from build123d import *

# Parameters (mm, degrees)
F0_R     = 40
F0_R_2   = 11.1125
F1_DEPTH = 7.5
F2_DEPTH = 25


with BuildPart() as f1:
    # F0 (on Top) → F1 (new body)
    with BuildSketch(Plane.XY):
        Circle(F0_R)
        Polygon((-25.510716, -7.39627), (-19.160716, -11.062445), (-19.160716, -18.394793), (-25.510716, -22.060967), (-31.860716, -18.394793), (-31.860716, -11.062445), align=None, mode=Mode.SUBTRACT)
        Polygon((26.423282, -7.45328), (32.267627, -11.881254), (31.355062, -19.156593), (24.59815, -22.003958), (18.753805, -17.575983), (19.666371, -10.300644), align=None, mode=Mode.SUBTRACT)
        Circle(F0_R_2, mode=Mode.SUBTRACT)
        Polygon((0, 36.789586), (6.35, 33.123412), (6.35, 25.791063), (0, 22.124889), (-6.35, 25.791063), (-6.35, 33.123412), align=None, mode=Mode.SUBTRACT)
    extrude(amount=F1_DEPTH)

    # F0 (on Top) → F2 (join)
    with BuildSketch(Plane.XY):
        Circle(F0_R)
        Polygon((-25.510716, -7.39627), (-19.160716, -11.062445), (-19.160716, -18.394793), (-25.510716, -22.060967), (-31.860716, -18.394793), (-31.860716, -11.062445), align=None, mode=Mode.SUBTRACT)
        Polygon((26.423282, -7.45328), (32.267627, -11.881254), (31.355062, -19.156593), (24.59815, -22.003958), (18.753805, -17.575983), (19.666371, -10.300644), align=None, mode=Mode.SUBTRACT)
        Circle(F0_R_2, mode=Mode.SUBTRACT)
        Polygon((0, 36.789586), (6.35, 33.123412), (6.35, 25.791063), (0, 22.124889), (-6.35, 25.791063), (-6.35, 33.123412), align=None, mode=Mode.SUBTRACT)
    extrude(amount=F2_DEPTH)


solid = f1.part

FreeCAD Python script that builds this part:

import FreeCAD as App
import Part
import Sketcher

V = App.Vector
Q = App.Units.Quantity

doc = App.newDocument("Part")
params = doc.addObject("Spreadsheet::Sheet", "Params")
for row, (alias, value) in enumerate([
    ("sketch1_diameter", "80 mm"),
    ("pad1_length", "7.5 mm"),
    ("sketch2_diameter", "80 mm"),
    ("pad2_length", "25 mm"),
], start=1):
    params.set(f"A{row}", alias)
    params.set(f"B{row}", "=" + value)
    params.setAlias(f"B{row}", alias)

body = doc.addObject("PartDesign::Body", "Body")

sketch1 = body.newObject("Sketcher::SketchObject", "Sketch")
sketch1.AttachmentSupport = (doc.getObject("XY_Plane"), [""])
sketch1.MapMode = "FlatFace"
sketch1.addGeometry([
    Part.Circle(V(0, 0, 0), V(0, 0, 1), 40),
    Part.LineSegment(V(-32, -11, 0), V(-26, -7, 0)),
    Part.LineSegment(V(-26, -7, 0), V(-19, -11, 0)),
    Part.LineSegment(V(-19, -11, 0), V(-19, -18, 0)),
    Part.LineSegment(V(-19, -18, 0), V(-26, -22, 0)),
    Part.LineSegment(V(-26, -22, 0), V(-32, -18, 0)),
    Part.LineSegment(V(-32, -18, 0), V(-32, -11, 0)),
    Part.Circle(V(0, 0, 0), V(0, 0, 1), 11),
    Part.LineSegment(V(20, -10, 0), V(26, -7, 0)),
    Part.LineSegment(V(26, -7, 0), V(32, -12, 0)),
    Part.LineSegment(V(32, -12, 0), V(31, -19, 0)),
    Part.LineSegment(V(31, -19, 0), V(25, -22, 0)),
    Part.LineSegment(V(25, -22, 0), V(19, -18, 0)),
    Part.LineSegment(V(19, -18, 0), V(20, -10, 0)),
    Part.LineSegment(V(-6, 33, 0), V(0, 37, 0)),
    Part.LineSegment(V(0, 37, 0), V(6, 33, 0)),
    Part.LineSegment(V(6, 33, 0), V(6, 26, 0)),
    Part.LineSegment(V(6, 26, 0), V(0, 22, 0)),
    Part.LineSegment(V(0, 22, 0), V(-6, 26, 0)),
    Part.LineSegment(V(-6, 26, 0), V(-6, 33, 0)),
], False)
sketch1.addConstraint([
    Sketcher.Constraint("Coincident", 1, 2, 2, 1),
    Sketcher.Constraint("Coincident", 2, 2, 3, 1),
    Sketcher.Constraint("Coincident", 3, 2, 4, 1),
    Sketcher.Constraint("Coincident", 4, 2, 5, 1),
    Sketcher.Constraint("Coincident", 5, 2, 6, 1),
    Sketcher.Constraint("Coincident", 6, 2, 1, 1),
    Sketcher.Constraint("Coincident", 8, 2, 9, 1),
    Sketcher.Constraint("Coincident", 9, 2, 10, 1),
    Sketcher.Constraint("Coincident", 10, 2, 11, 1),
    Sketcher.Constraint("Coincident", 11, 2, 12, 1),
    Sketcher.Constraint("Coincident", 12, 2, 13, 1),
    Sketcher.Constraint("Coincident", 13, 2, 8, 1),
    Sketcher.Constraint("Coincident", 14, 2, 15, 1),
    Sketcher.Constraint("Coincident", 15, 2, 16, 1),
    Sketcher.Constraint("Coincident", 16, 2, 17, 1),
    Sketcher.Constraint("Coincident", 17, 2, 18, 1),
    Sketcher.Constraint("Coincident", 18, 2, 19, 1),
    Sketcher.Constraint("Coincident", 19, 2, 14, 1),
    Sketcher.Constraint("Vertical", 3),
    Sketcher.Constraint("Vertical", 6),
    Sketcher.Constraint("Vertical", 16),
    Sketcher.Constraint("Vertical", 19),
    Sketcher.Constraint("Coincident", 0, 3, -1, 1),
    Sketcher.Constraint("Coincident", 7, 3, -1, 1),
    Sketcher.Constraint("Symmetric", 16, 2, 18, 2, -2),
    Sketcher.Constraint("PointOnObject", 14, 2, -2),
    Sketcher.Constraint("PointOnObject", 17, 2, -2),
    Sketcher.Constraint("Parallel", 1, 4),
    Sketcher.Constraint("Parallel", 2, 5),
    Sketcher.Constraint("Parallel", 8, 11),
    Sketcher.Constraint("Parallel", 9, 12),
    Sketcher.Constraint("Parallel", 10, 13),
    Sketcher.Constraint("Parallel", 4, 14),
    Sketcher.Constraint("Parallel", 5, 15),
    Sketcher.Constraint("Parallel", 14, 17),
    Sketcher.Constraint("Parallel", 15, 18),
    Sketcher.Constraint("Horizontal", 3, 2, 5, 2),
    Sketcher.Constraint("Horizontal", 2, 2, 6, 2),
    Sketcher.Constraint("Equal", 6, 16),
    Sketcher.Constraint("Equal", 5, 8),
    Sketcher.Constraint("Equal", 8, 9),
    Sketcher.Constraint("Equal", 9, 10),
    Sketcher.Constraint("Equal", 10, 11),
    Sketcher.Constraint("Equal", 13, 14),
    Sketcher.Constraint("Diameter", 0, Q("80 mm")),
    Sketcher.Constraint("Angle", 1, Q("30.000005 deg")),
    Sketcher.Constraint("Diameter", 7, Q("22.225 mm")),
    Sketcher.Constraint("DistanceX", 5, 2, 3, 2, Q("12.7 mm")),
    Sketcher.Constraint("DistanceX", 1, 2, 8, 2, Q("51.933998 mm")),
    Sketcher.Constraint("DistanceY", 16, 2, 16, 1, Q("7.332349 mm")),
    Sketcher.Constraint("DistanceY", 10, 2, 3, 2, Q("0.7618 mm")),
    Sketcher.Constraint("DistanceY", 1, 2, -1, 1, Q("7.39627 mm")),
    Sketcher.Constraint("DistanceY", 8, 2, -1, 1, Q("7.45328 mm")),
    Sketcher.Constraint("DistanceX", -1, 1, 10, 2, Q("31.355062 mm")),
    Sketcher.Constraint("DistanceX", -1, 1, 11, 2, Q("24.59815 mm")),
    Sketcher.Constraint("DistanceX", -1, 1, 13, 2, Q("19.666371 mm")),
    Sketcher.Constraint("DistanceY", -1, 1, 17, 2, Q("22.124889 mm")),
])
sketch1.setExpression("Constraints[44]", "Params.sketch1_diameter")
pad1 = body.newObject("PartDesign::Pad", "Pad")
pad1.Profile = sketch1
pad1.setExpression("Length", "Params.pad1_length")

sketch2 = body.newObject("Sketcher::SketchObject", "Sketch001")
sketch2.AttachmentSupport = (doc.getObject("XY_Plane"), [""])
sketch2.MapMode = "FlatFace"
sketch2.addGeometry([
    Part.Circle(V(0, 0, 0), V(0, 0, 1), 40),
    Part.LineSegment(V(-32, -11, 0), V(-26, -7, 0)),
    Part.LineSegment(V(-26, -7, 0), V(-19, -11, 0)),
    Part.LineSegment(V(-19, -11, 0), V(-19, -18, 0)),
    Part.LineSegment(V(-19, -18, 0), V(-26, -22, 0)),
    Part.LineSegment(V(-26, -22, 0), V(-32, -18, 0)),
    Part.LineSegment(V(-32, -18, 0), V(-32, -11, 0)),
    Part.Circle(V(0, 0, 0), V(0, 0, 1), 11),
    Part.LineSegment(V(20, -10, 0), V(26, -7, 0)),
    Part.LineSegment(V(26, -7, 0), V(32, -12, 0)),
    Part.LineSegment(V(32, -12, 0), V(31, -19, 0)),
    Part.LineSegment(V(31, -19, 0), V(25, -22, 0)),
    Part.LineSegment(V(25, -22, 0), V(19, -18, 0)),
    Part.LineSegment(V(19, -18, 0), V(20, -10, 0)),
    Part.LineSegment(V(-6, 33, 0), V(0, 37, 0)),
    Part.LineSegment(V(0, 37, 0), V(6, 33, 0)),
    Part.LineSegment(V(6, 33, 0), V(6, 26, 0)),
    Part.LineSegment(V(6, 26, 0), V(0, 22, 0)),
    Part.LineSegment(V(0, 22, 0), V(-6, 26, 0)),
    Part.LineSegment(V(-6, 26, 0), V(-6, 33, 0)),
], False)
sketch2.addConstraint([
    Sketcher.Constraint("Coincident", 1, 2, 2, 1),
    Sketcher.Constraint("Coincident", 2, 2, 3, 1),
    Sketcher.Constraint("Coincident", 3, 2, 4, 1),
    Sketcher.Constraint("Coincident", 4, 2, 5, 1),
    Sketcher.Constraint("Coincident", 5, 2, 6, 1),
    Sketcher.Constraint("Coincident", 6, 2, 1, 1),
    Sketcher.Constraint("Coincident", 8, 2, 9, 1),
    Sketcher.Constraint("Coincident", 9, 2, 10, 1),
    Sketcher.Constraint("Coincident", 10, 2, 11, 1),
    Sketcher.Constraint("Coincident", 11, 2, 12, 1),
    Sketcher.Constraint("Coincident", 12, 2, 13, 1),
    Sketcher.Constraint("Coincident", 13, 2, 8, 1),
    Sketcher.Constraint("Coincident", 14, 2, 15, 1),
    Sketcher.Constraint("Coincident", 15, 2, 16, 1),
    Sketcher.Constraint("Coincident", 16, 2, 17, 1),
    Sketcher.Constraint("Coincident", 17, 2, 18, 1),
    Sketcher.Constraint("Coincident", 18, 2, 19, 1),
    Sketcher.Constraint("Coincident", 19, 2, 14, 1),
    Sketcher.Constraint("Vertical", 3),
    Sketcher.Constraint("Vertical", 6),
    Sketcher.Constraint("Vertical", 16),
    Sketcher.Constraint("Vertical", 19),
    Sketcher.Constraint("Coincident", 0, 3, -1, 1),
    Sketcher.Constraint("Coincident", 7, 3, -1, 1),
    Sketcher.Constraint("Symmetric", 16, 2, 18, 2, -2),
    Sketcher.Constraint("PointOnObject", 14, 2, -2),
    Sketcher.Constraint("PointOnObject", 17, 2, -2),
    Sketcher.Constraint("Parallel", 1, 4),
    Sketcher.Constraint("Parallel", 2, 5),
    Sketcher.Constraint("Parallel", 8, 11),
    Sketcher.Constraint("Parallel", 9, 12),
    Sketcher.Constraint("Parallel", 10, 13),
    Sketcher.Constraint("Parallel", 4, 14),
    Sketcher.Constraint("Parallel", 5, 15),
    Sketcher.Constraint("Parallel", 14, 17),
    Sketcher.Constraint("Parallel", 15, 18),
    Sketcher.Constraint("Horizontal", 3, 2, 5, 2),
    Sketcher.Constraint("Horizontal", 2, 2, 6, 2),
    Sketcher.Constraint("Equal", 6, 16),
    Sketcher.Constraint("Equal", 5, 8),
    Sketcher.Constraint("Equal", 8, 9),
    Sketcher.Constraint("Equal", 9, 10),
    Sketcher.Constraint("Equal", 10, 11),
    Sketcher.Constraint("Equal", 13, 14),
    Sketcher.Constraint("Diameter", 0, Q("80 mm")),
    Sketcher.Constraint("Angle", 1, Q("30.000005 deg")),
    Sketcher.Constraint("Diameter", 7, Q("22.225 mm")),
    Sketcher.Constraint("DistanceX", 5, 2, 3, 2, Q("12.7 mm")),
    Sketcher.Constraint("DistanceX", 1, 2, 8, 2, Q("51.933998 mm")),
    Sketcher.Constraint("DistanceY", 16, 2, 16, 1, Q("7.332349 mm")),
    Sketcher.Constraint("DistanceY", 10, 2, 3, 2, Q("0.7618 mm")),
    Sketcher.Constraint("DistanceY", 1, 2, -1, 1, Q("7.39627 mm")),
    Sketcher.Constraint("DistanceY", 8, 2, -1, 1, Q("7.45328 mm")),
    Sketcher.Constraint("DistanceX", -1, 1, 10, 2, Q("31.355062 mm")),
    Sketcher.Constraint("DistanceX", -1, 1, 11, 2, Q("24.59815 mm")),
    Sketcher.Constraint("DistanceX", -1, 1, 13, 2, Q("19.666371 mm")),
    Sketcher.Constraint("DistanceY", -1, 1, 17, 2, Q("22.124889 mm")),
])
sketch2.setExpression("Constraints[44]", "Params.sketch2_diameter")
pad2 = body.newObject("PartDesign::Pad", "Pad001")
pad2.Profile = sketch2
pad2.setExpression("Length", "Params.pad2_length")

doc.recompute()
